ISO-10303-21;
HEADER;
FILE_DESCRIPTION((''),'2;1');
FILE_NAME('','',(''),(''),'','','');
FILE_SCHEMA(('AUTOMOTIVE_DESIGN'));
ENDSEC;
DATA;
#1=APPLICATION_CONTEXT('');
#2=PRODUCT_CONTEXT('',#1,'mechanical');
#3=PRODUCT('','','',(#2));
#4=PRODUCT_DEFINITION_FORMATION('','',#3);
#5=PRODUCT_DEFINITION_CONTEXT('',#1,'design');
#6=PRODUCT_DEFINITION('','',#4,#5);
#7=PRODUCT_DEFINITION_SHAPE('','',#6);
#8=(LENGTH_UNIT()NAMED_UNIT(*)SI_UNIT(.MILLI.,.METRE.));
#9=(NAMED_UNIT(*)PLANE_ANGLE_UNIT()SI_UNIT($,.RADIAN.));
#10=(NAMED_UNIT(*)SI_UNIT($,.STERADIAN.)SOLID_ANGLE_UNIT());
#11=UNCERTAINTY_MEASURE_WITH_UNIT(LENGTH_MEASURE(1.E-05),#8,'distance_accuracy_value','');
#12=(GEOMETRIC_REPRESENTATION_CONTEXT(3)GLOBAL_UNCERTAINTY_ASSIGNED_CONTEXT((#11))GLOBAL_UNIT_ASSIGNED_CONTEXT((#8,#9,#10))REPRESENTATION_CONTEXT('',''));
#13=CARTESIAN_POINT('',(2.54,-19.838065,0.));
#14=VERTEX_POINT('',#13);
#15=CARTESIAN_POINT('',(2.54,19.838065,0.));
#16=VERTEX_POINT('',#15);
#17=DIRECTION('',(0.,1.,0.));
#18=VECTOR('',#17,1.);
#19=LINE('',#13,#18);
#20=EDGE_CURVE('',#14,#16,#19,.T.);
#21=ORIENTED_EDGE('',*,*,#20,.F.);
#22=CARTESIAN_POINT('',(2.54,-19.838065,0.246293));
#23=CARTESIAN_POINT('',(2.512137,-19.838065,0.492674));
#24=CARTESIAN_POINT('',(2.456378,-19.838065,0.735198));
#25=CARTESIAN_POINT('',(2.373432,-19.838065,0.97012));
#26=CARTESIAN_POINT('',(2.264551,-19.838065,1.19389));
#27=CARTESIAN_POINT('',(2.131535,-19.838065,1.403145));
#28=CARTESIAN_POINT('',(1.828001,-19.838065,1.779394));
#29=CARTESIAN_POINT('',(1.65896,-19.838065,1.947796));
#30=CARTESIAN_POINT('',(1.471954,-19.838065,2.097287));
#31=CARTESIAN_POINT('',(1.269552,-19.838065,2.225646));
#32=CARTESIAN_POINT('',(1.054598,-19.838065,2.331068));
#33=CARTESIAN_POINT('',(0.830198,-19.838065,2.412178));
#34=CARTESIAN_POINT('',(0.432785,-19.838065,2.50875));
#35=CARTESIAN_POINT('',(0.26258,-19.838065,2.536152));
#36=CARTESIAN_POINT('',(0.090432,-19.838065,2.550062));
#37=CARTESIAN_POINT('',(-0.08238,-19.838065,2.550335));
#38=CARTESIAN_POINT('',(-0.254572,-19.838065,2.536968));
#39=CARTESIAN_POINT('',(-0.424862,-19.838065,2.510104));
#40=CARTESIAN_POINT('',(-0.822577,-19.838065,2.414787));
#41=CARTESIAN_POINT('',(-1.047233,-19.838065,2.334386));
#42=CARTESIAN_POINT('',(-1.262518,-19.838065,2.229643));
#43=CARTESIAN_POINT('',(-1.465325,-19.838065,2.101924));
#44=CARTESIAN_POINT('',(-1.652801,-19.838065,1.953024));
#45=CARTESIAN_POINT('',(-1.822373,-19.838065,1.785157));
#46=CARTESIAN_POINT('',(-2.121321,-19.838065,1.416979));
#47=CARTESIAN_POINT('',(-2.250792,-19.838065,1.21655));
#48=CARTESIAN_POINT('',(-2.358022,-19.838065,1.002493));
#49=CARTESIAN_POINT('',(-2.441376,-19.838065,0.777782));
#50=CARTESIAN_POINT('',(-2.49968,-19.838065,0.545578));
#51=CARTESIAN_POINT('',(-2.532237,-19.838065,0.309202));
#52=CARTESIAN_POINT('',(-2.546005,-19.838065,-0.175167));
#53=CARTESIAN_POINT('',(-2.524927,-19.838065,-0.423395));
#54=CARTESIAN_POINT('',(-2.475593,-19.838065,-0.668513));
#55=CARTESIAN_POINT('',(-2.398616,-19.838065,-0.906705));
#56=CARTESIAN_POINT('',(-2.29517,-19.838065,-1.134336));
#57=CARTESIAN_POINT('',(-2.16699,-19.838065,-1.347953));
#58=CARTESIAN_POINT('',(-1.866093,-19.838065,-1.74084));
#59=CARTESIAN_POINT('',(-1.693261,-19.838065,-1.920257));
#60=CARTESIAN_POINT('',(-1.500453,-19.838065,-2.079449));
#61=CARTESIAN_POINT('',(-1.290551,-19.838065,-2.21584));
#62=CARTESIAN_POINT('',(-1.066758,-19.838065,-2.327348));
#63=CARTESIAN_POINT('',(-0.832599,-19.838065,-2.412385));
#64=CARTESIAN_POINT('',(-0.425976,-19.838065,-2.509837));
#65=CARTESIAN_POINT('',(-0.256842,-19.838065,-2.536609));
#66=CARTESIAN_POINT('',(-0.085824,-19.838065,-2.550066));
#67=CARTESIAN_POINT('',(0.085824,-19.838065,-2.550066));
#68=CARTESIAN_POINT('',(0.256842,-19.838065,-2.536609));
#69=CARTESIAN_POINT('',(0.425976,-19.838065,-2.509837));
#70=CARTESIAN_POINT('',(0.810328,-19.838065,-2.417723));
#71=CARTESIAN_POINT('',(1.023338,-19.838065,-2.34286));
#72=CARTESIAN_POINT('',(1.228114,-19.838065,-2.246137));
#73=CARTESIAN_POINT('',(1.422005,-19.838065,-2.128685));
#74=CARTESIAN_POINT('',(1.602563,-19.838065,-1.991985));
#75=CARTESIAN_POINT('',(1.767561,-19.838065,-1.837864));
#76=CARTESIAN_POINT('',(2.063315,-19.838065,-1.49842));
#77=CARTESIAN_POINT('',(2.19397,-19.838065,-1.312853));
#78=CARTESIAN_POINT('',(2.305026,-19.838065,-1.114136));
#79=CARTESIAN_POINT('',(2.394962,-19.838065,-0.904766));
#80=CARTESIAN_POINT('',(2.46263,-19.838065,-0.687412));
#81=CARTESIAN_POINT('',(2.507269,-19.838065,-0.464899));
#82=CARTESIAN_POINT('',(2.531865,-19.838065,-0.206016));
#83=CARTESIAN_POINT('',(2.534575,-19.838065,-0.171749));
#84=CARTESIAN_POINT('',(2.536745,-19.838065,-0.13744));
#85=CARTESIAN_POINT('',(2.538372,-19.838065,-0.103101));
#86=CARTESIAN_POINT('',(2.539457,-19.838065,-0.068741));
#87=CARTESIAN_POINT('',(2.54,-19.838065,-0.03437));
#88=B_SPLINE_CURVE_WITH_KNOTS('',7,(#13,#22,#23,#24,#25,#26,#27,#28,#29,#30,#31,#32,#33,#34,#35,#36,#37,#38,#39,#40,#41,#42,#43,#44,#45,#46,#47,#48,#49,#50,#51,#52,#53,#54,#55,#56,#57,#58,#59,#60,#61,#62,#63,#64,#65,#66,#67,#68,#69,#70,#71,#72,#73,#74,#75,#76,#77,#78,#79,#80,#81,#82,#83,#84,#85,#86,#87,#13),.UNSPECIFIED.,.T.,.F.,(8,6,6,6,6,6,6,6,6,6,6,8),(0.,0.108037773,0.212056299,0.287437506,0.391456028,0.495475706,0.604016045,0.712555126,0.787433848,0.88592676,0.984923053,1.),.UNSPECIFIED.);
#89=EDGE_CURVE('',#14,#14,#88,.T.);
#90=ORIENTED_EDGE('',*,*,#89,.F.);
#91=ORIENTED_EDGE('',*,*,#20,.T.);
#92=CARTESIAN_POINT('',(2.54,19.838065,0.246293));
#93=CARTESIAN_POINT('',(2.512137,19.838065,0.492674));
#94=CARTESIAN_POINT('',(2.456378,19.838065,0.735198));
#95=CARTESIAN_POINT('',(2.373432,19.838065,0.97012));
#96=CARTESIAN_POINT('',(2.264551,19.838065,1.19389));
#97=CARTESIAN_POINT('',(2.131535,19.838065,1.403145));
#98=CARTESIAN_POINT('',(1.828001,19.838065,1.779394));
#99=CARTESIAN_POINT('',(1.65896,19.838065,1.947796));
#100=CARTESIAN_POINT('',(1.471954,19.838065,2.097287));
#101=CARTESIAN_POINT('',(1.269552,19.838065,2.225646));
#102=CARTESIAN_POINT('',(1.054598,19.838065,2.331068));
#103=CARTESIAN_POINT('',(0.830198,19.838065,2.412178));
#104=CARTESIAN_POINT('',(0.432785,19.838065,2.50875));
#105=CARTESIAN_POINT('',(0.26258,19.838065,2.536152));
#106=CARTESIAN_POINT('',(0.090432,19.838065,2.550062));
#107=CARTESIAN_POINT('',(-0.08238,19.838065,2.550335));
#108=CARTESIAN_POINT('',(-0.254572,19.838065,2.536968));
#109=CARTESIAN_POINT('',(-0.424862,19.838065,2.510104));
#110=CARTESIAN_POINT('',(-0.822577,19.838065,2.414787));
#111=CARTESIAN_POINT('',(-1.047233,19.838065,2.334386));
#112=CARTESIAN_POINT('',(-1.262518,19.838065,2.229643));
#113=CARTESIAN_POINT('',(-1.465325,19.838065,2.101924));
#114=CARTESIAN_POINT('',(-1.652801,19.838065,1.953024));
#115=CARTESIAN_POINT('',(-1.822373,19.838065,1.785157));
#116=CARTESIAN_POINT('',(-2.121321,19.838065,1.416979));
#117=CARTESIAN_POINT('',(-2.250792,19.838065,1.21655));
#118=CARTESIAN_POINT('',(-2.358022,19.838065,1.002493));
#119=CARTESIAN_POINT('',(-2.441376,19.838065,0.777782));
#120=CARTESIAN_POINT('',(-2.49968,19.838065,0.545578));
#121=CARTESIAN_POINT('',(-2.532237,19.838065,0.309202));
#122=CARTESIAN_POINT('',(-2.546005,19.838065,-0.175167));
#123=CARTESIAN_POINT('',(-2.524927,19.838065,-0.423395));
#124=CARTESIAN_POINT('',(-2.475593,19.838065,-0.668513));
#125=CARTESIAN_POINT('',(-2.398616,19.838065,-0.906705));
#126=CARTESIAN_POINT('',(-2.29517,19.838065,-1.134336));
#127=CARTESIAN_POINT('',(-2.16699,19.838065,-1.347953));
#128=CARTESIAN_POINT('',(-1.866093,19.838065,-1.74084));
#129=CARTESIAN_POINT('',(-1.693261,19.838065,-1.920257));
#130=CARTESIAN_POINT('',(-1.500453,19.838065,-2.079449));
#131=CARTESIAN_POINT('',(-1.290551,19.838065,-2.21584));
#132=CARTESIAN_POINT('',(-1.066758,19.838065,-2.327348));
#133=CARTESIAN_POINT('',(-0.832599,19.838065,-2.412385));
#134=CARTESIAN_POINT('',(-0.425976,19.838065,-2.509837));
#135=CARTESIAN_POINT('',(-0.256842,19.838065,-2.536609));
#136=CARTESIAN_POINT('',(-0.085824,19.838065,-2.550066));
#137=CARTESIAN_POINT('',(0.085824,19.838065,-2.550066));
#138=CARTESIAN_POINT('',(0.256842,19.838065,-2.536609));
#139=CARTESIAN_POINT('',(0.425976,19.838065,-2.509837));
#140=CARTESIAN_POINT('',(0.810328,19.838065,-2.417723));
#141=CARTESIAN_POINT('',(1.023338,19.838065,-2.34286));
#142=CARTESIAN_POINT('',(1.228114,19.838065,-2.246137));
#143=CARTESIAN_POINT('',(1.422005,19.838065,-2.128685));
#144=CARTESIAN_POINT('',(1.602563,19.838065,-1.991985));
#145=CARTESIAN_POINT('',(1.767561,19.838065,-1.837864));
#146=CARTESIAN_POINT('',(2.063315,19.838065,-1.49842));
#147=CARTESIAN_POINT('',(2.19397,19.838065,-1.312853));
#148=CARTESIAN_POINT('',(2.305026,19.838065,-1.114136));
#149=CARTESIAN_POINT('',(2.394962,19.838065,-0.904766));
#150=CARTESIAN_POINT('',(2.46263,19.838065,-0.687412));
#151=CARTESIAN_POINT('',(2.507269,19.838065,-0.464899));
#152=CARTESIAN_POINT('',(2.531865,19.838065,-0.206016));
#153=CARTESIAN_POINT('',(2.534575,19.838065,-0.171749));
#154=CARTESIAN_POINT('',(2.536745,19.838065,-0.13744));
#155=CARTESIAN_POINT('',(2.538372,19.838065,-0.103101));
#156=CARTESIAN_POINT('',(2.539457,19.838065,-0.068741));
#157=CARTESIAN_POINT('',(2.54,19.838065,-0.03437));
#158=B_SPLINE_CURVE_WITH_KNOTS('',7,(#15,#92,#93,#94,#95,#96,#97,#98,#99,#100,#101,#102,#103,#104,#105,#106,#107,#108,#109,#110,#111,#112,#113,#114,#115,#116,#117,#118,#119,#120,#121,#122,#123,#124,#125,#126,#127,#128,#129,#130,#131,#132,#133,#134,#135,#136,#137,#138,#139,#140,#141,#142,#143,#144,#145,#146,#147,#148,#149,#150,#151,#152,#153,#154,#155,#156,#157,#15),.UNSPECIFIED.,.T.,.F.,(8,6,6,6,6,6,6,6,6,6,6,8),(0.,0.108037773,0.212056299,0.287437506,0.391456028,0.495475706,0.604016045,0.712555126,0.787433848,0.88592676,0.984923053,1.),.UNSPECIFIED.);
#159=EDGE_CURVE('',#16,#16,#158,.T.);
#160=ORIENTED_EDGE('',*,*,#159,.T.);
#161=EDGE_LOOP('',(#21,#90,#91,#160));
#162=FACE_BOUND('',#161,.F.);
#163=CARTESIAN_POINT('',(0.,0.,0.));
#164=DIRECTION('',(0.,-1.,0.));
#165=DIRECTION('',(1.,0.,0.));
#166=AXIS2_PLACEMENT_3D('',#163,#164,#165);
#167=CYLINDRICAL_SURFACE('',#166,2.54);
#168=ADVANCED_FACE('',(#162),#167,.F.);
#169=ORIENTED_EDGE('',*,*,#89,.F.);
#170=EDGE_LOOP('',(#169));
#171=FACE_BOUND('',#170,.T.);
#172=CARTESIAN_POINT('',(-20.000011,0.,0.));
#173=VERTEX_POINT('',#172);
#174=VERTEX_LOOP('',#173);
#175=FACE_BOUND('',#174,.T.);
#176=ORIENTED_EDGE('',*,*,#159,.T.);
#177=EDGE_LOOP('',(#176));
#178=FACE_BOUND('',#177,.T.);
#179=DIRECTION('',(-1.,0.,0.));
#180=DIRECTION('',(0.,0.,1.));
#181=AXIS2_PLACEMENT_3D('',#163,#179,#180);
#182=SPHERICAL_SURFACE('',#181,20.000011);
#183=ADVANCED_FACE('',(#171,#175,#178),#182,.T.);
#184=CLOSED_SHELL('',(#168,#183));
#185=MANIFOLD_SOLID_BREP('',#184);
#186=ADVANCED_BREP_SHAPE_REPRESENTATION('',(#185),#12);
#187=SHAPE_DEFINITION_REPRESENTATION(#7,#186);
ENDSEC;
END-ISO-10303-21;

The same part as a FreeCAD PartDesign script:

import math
import FreeCAD as App
import Part
import Sketcher
Q = App.Units.Quantity

doc = App.newDocument("Part")
body = doc.addObject("PartDesign::Body", "Body")

# Sketch on XZ plane
sketch1 = body.newObject("Sketcher::SketchObject", "Sketch")
sketch1.AttachmentSupport = (doc.getObject("XZ_Plane"), [""])
sketch1.MapMode = "FlatFace"
sketch1.addGeometry([
    Part.LineSegment(App.Vector(-20.000011, 0, 0), App.Vector(20.000011, 0, 0)),
    Part.ArcOfCircle(Part.Circle(App.Vector(0, 0, 0), App.Vector(0, 0, 1), 20.000011), math.radians(0), math.radians(180)),
], False)
sketch1.addConstraint([
    Sketcher.Constraint("Coincident", 0, 1, 1, 2),
    Sketcher.Constraint("Coincident", 1, 1, 0, 2),
    Sketcher.Constraint("Horizontal", 0),
    Sketcher.Constraint("Coincident", 1, 3, -1, 1),
    Sketcher.Constraint("PointOnObject", 0, 1, -1),
    Sketcher.Constraint("Radius", 1, Q("20.000011 mm")),
])
revolution = body.newObject("PartDesign::Revolution", "Revolution")
revolution.Profile = sketch1
revolution.ReferenceAxis = (sketch1, ["H_Axis"])
revolution.Angle = 360

# Sketch on XZ plane
sketch2 = body.newObject("Sketcher::SketchObject", "Sketch001")
sketch2.AttachmentSupport = (doc.getObject("XZ_Plane"), [""])
sketch2.MapMode = "FlatFace"
sketch2.addGeometry(Part.Circle(App.Vector(0, 0, 0), App.Vector(0, 0, 1), 2.54), False)
sketch2.addConstraint([
    Sketcher.Constraint("Coincident", 0, 3, -1, 1),
    Sketcher.Constraint("Diameter", 0, Q("0.2 in")),
])
pocket1 = body.newObject("PartDesign::Pocket", "Pocket")
pocket1.Profile = sketch2
pocket1.Type = "ThroughAll"
pocket1.Midplane = True

doc.recompute()
